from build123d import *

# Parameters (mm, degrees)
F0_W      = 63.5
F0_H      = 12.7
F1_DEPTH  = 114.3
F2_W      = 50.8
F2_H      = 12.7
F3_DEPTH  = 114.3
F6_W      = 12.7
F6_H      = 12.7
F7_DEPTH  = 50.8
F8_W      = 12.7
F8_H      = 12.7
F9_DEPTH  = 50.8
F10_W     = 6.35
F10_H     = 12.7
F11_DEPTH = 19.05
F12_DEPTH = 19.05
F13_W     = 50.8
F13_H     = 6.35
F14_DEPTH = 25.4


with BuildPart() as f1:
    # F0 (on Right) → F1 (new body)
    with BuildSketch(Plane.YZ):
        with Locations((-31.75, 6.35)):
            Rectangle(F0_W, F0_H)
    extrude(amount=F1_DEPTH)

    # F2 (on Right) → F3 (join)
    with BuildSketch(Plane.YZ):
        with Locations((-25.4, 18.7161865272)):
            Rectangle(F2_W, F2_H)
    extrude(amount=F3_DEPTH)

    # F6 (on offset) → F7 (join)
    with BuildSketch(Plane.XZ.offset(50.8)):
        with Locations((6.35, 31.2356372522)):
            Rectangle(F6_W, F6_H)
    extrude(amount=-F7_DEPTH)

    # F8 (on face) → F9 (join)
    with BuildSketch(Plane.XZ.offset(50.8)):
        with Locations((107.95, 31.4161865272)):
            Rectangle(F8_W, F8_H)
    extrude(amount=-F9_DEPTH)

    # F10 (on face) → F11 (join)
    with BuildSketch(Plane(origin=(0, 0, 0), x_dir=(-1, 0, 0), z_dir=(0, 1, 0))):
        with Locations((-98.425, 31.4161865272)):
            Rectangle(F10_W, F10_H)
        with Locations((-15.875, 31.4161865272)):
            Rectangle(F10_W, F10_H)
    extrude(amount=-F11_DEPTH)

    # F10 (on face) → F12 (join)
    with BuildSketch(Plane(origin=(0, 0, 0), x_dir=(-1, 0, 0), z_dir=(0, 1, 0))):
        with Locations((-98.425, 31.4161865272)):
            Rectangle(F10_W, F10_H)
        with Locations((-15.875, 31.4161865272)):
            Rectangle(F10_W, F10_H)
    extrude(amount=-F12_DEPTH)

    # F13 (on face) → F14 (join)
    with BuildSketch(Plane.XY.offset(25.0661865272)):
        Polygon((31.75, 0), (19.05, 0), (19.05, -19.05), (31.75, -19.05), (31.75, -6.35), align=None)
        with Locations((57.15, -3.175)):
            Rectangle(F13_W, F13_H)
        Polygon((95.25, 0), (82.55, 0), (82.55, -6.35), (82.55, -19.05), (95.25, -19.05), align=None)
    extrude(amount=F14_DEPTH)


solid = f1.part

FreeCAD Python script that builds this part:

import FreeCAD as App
import Part
import Sketcher
Q = App.Units.Quantity

doc = App.newDocument("Part")
params = doc.addObject("Spreadsheet::Sheet", "Params")
for row, (alias, value) in enumerate([
    ("sketch1_width", "2.5 in"),
    ("sketch1_height", "0.5 in"),
    ("pad1_length", "4.5 in"),
    ("sketch2_width", "2 in"),
    ("sketch2_height", "0.5 in"),
    ("pad2_length", "4.5 in"),
    ("sketch3_width", "0.5 in"),
    ("pad3_length", "2 in"),
    ("sketch4_width", "0.5 in"),
    ("pad4_length", "2 in"),
    ("sketch5_height", "0.5 in"),
    ("sketch5_width", "0.25 in"),
    ("pad5_length", "0.75 in"),
    ("sketch6_height", "0.5 in"),
    ("sketch6_width", "0.25 in"),
    ("pad6_length", "0.75 in"),
    ("sketch7_width", "2 in"),
    ("sketch7_width2", "3 in"),
    ("sketch7_height", "0.75 in"),
    ("pad7_length", "1 in"),
], start=1):
    params.set(f"A{row}", alias)
    params.set(f"B{row}", "=" + value)
    params.setAlias(f"B{row}", alias)

body = doc.addObject("PartDesign::Body", "Body")

# Sketch on YZ plane
sketch1 = doc.addObject("Sketcher::SketchObject", "Sketch")
body.addObject(sketch1)
sketch1.AttachmentSupport = (doc.YZ_Plane, [""])
sketch1.MapMode = "FlatFace"
sketch1.addGeometry(Part.LineSegment(App.Vector(-63.5, 12.7, 0), App.Vector(-63.5, 0, 0)), False)
sketch1.addGeometry(Part.LineSegment(App.Vector(-63.5, 0, 0), App.Vector(0, 0, 0)), False)
sketch1.addGeometry(Part.LineSegment(App.Vector(0, 0, 0), App.Vector(0, 12.7, 0)), False)
sketch1.addGeometry(Part.LineSegment(App.Vector(0, 12.7, 0), App.Vector(-63.5, 12.7, 0)), False)
sketch1.addConstraint(Sketcher.Constraint("Coincident", 0, 2, 1, 1))
sketch1.addConstraint(Sketcher.Constraint("Coincident", 1, 2, 2, 1))
sketch1.addConstraint(Sketcher.Constraint("Coincident", 2, 2, 3, 1))
sketch1.addConstraint(Sketcher.Constraint("Coincident", 3, 2, 0, 1))
sketch1.addConstraint(Sketcher.Constraint("Vertical", 0))
sketch1.addConstraint(Sketcher.Constraint("Horizontal", 1))
sketch1.addConstraint(Sketcher.Constraint("Vertical", 2))
sketch1.addConstraint(Sketcher.Constraint("Horizontal", 3))
sketch1.addConstraint(Sketcher.Constraint("Coincident", 1, 2, -1, 1))
sketch1.addConstraint(Sketcher.Constraint("DistanceX", 1, 1, 1, 2, Q("2.5 in")))
sketch1.addConstraint(Sketcher.Constraint("DistanceY", 0, 2, 0, 1, Q("0.5 in")))
sketch1.setExpression("Constraints[9]", "Params.sketch1_width")
sketch1.setExpression("Constraints[10]", "Params.sketch1_height")
pad1 = doc.addObject("PartDesign::Pad", "Pad")
body.addObject(pad1)
pad1.Profile = sketch1
pad1.setExpression("Length", "Params.pad1_length")

# Sketch on YZ plane
sketch2 = doc.addObject("Sketcher::SketchObject", "Sketch001")
body.addObject(sketch2)
sketch2.AttachmentSupport = (doc.YZ_Plane, [""])
sketch2.MapMode = "FlatFace"
sketch2.addGeometry(Part.LineSegment(App.Vector(-50.8, 25.066187, 0), App.Vector(-50.8, 12.366187, 0)), False)
sketch2.addGeometry(Part.LineSegment(App.Vector(-50.8, 12.366187, 0), App.Vector(0, 12.366187, 0)), False)
sketch2.addGeometry(Part.LineSegment(App.Vector(0, 12.366187, 0), App.Vector(0, 25.066187, 0)), False)
sketch2.addGeometry(Part.LineSegment(App.Vector(0, 25.066187, 0), App.Vector(-50.8, 25.066187, 0)), False)
sketch2.addConstraint(Sketcher.Constraint("Coincident", 0, 2, 1, 1))
sketch2.addConstraint(Sketcher.Constraint("Coincident", 1, 2, 2, 1))
sketch2.addConstraint(Sketcher.Constraint("Coincident", 2, 2, 3, 1))
sketch2.addConstraint(Sketcher.Constraint("Coincident", 3, 2, 0, 1))
sketch2.addConstraint(Sketcher.Constraint("Vertical", 0))
sketch2.addConstraint(Sketcher.Constraint("Horizontal", 1))
sketch2.addConstraint(Sketcher.Constraint("Vertical", 2))
sketch2.addConstraint(Sketcher.Constraint("Horizontal", 3))
sketch2.addConstraint(Sketcher.Constraint("PointOnObject", 1, 2, -2))
sketch2.addConstraint(Sketcher.Constraint("DistanceX", 1, 1, 1, 2, Q("2 in")))
sketch2.addConstraint(Sketcher.Constraint("DistanceY", 0, 2, 0, 1, Q("0.5 in")))
sketch2.addConstraint(Sketcher.Constraint("DistanceY", -1, 1, 0, 2, 12.366187))
sketch2.setExpression("Constraints[9]", "Params.sketch2_width")
sketch2.setExpression("Constraints[10]", "Params.sketch2_height")
pad2 = doc.addObject("PartDesign::Pad", "Pad001")
body.addObject(pad2)
pad2.Profile = sketch2
pad2.setExpression("Length", "Params.pad2_length")

# Sketch on XZ plane
sketch3 = doc.addObject("Sketcher::SketchObject", "Sketch002")
body.addObject(sketch3)
sketch3.AttachmentSupport = (doc.XZ_Plane, [""])
sketch3.MapMode = "FlatFace"
sketch3.AttachmentOffset = App.Placement(App.Vector(0, 0, 2 * 25.4), App.Rotation())
sketch3.addGeometry(Part.LineSegment(App.Vector(0, 37.585637, 0), App.Vector(0, 24.885637, 0)), False)
sketch3.addGeometry(Part.LineSegment(App.Vector(0, 24.885637, 0), App.Vector(12.7, 24.885637, 0)), False)
sketch3.addGeometry(Part.LineSegment(App.Vector(12.7, 24.885637, 0), App.Vector(12.7, 37.585637, 0)), False)
sketch3.addGeometry(Part.LineSegment(App.Vector(12.7, 37.585637, 0), App.Vector(0, 37.585637, 0)), False)
sketch3.addConstraint(Sketcher.Constraint("Coincident", 0, 2, 1, 1))
sketch3.addConstraint(Sketcher.Constraint("Coincident", 1, 2, 2, 1))
sketch3.addConstraint(Sketcher.Constraint("Coincident", 2, 2, 3, 1))
sketch3.addConstraint(Sketcher.Constraint("Coincident", 3, 2, 0, 1))
sketch3.addConstraint(Sketcher.Constraint("Vertical", 0))
sketch3.addConstraint(Sketcher.Constraint("Horizontal", 1))
sketch3.addConstraint(Sketcher.Constraint("Vertical", 2))
sketch3.addConstraint(Sketcher.Constraint("Horizontal", 3))
sketch3.addConstraint(Sketcher.Constraint("PointOnObject", 0, 2, -2))
sketch3.addConstraint(Sketcher.Constraint("Equal", 3, 0))
sketch3.addConstraint(Sketcher.Constraint("DistanceX", 1, 1, 1, 2, Q("0.5 in")))
sketch3.addConstraint(Sketcher.Constraint("DistanceY", -1, 1, 0, 2, 24.885637))
sketch3.setExpression("Constraints[10]", "Params.sketch3_width")
pad3 = doc.addObject("PartDesign::Pad", "Pad002")
body.addObject(pad3)
pad3.Profile = sketch3
pad3.setExpression("Length", "Params.pad3_length")
pad3.Reversed = True

# Sketch on XZ plane
sketch4 = doc.addObject("Sketcher::SketchObject", "Sketch003")
body.addObject(sketch4)
sketch4.AttachmentSupport = (doc.XZ_Plane, [""])
sketch4.MapMode = "FlatFace"
sketch4.AttachmentOffset = App.Placement(App.Vector(0, 0, 2 * 25.4), App.Rotation())
sketch4.addGeometry(Part.LineSegment(App.Vector(101.6, 37.766187, 0), App.Vector(101.6, 25.066187, 0)), False)
sketch4.addGeometry(Part.LineSegment(App.Vector(101.6, 25.066187, 0), App.Vector(114.3, 25.066187, 0)), False)
sketch4.addGeometry(Part.LineSegment(App.Vector(114.3, 25.066187, 0), App.Vector(114.3, 37.766187, 0)), False)
sketch4.addGeometry(Part.LineSegment(App.Vector(114.3, 37.766187, 0), App.Vector(101.6, 37.766187, 0)), False)
sketch4.addConstraint(Sketcher.Constraint("Coincident", 0, 2, 1, 1))
sketch4.addConstraint(Sketcher.Constraint("Coincident", 1, 2, 2, 1))
sketch4.addConstraint(Sketcher.Constraint("Coincident", 2, 2, 3, 1))
sketch4.addConstraint(Sketcher.Constraint("Coincident", 3, 2, 0, 1))
sketch4.addConstraint(Sketcher.Constraint("Vertical", 0))
sketch4.addConstraint(Sketcher.Constraint("Horizontal", 1))
sketch4.addConstraint(Sketcher.Constraint("Vertical", 2))
sketch4.addConstraint(Sketcher.Constraint("Horizontal", 3))
sketch4.addConstraint(Sketcher.Constraint("Equal", 3, 0))
sketch4.addConstraint(Sketcher.Constraint("DistanceX", 1, 1, 1, 2, Q("0.5 in")))
sketch4.addConstraint(Sketcher.Constraint("DistanceX", -1, 1, 0, 2, Q("4 in")))
sketch4.addConstraint(Sketcher.Constraint("DistanceY", -1, 1, 0, 2, 25.066187))
sketch4.setExpression("Constraints[9]", "Params.sketch4_width")
pad4 = doc.addObject("PartDesign::Pad", "Pad003")
body.addObject(pad4)
pad4.Profile = sketch4
pad4.setExpression("Length", "Params.pad4_length")
pad4.Reversed = True

# Sketch on XZ plane
sketch5 = doc.addObject("Sketcher::SketchObject", "Sketch004")
body.addObject(sketch5)
sketch5.AttachmentSupport = (doc.XZ_Plane, [""])
sketch5.MapMode = "FlatFace"
sketch5.addGeometry(Part.LineSegment(App.Vector(101.6, 37.766187, 0), App.Vector(101.6, 25.066187, 0)), False)
sketch5.addGeometry(Part.LineSegment(App.Vector(101.6, 25.066187, 0), App.Vector(95.25, 25.066187, 0)), False)
sketch5.addGeometry(Part.LineSegment(App.Vector(95.25, 25.066187, 0), App.Vector(95.25, 37.766187, 0)), False)
sketch5.addGeometry(Part.LineSegment(App.Vector(95.25, 37.766187, 0), App.Vector(101.6, 37.766187, 0)), False)
sketch5.addGeometry(Part.LineSegment(App.Vector(19.05, 37.766187, 0), App.Vector(19.05, 25.066187, 0)), False)
sketch5.addGeometry(Part.LineSegment(App.Vector(19.05, 25.066187, 0), App.Vector(12.7, 25.066187, 0)), False)
sketch5.addGeometry(Part.LineSegment(App.Vector(12.7, 25.066187, 0), App.Vector(12.7, 37.766187, 0)), False)
sketch5.addGeometry(Part.LineSegment(App.Vector(12.7, 37.766187, 0), App.Vector(19.05, 37.766187, 0)), False)
sketch5.addConstraint(Sketcher.Constraint("Coincident", 0, 2, 1, 1))
sketch5.addConstraint(Sketcher.Constraint("Coincident", 1, 2, 2, 1))
sketch5.addConstraint(Sketcher.Constraint("Coincident", 2, 2, 3, 1))
sketch5.addConstraint(Sketcher.Constraint("Coincident", 3, 2, 0, 1))
sketch5.addConstraint(Sketcher.Constraint("Coincident", 4, 2, 5, 1))
sketch5.addConstraint(Sketcher.Constraint("Coincident", 5, 2, 6, 1))
sketch5.addConstraint(Sketcher.Constraint("Coincident", 6, 2, 7, 1))
sketch5.addConstraint(Sketcher.Constraint("Coincident", 7, 2, 4, 1))
sketch5.addConstraint(Sketcher.Constraint("Vertical", 0))
sketch5.addConstraint(Sketcher.Constraint("Horizontal", 1))
sketch5.addConstraint(Sketcher.Constraint("Vertical", 2))
sketch5.addConstraint(Sketcher.Constraint("Horizontal", 3))
sketch5.addConstraint(Sketcher.Constraint("Vertical", 4))
sketch5.addConstraint(Sketcher.Constraint("Horizontal", 5))
sketch5.addConstraint(Sketcher.Constraint("Vertical", 6))
sketch5.addConstraint(Sketcher.Constraint("Horizontal", 7))
sketch5.addConstraint(Sketcher.Constraint("Horizontal", 1, 2, 4, 2))
sketch5.addConstraint(Sketcher.Constraint("Horizontal", 3, 2, 6, 2))
sketch5.addConstraint(Sketcher.Constraint("Equal", 3, 5))
sketch5.addConstraint(Sketcher.Constraint("DistanceY", 0, 2, 0, 1, Q("0.5 in")))
sketch5.addConstraint(Sketcher.Constraint("DistanceX", -1, 1, 0, 2, Q("4 in")))
sketch5.addConstraint(Sketcher.Constraint("DistanceX", 4, 2, 1, 2, Q("3 in")))
sketch5.addConstraint(Sketcher.Constraint("DistanceX", 1, 2, 1, 1, Q("0.25 in")))
sketch5.addConstraint(Sketcher.Constraint("DistanceY", -1, 1, 0, 2, 25.066187))
sketch5.setExpression("Constraints[19]", "Params.sketch5_height")
sketch5.setExpression("Constraints[22]", "Params.sketch5_width")
pad5 = doc.addObject("PartDesign::Pad", "Pad004")
body.addObject(pad5)
pad5.Profile = sketch5
pad5.setExpression("Length", "Params.pad5_length")

# Sketch on XZ plane
sketch6 = doc.addObject("Sketcher::SketchObject", "Sketch005")
body.addObject(sketch6)
sketch6.AttachmentSupport = (doc.XZ_Plane, [""])
sketch6.MapMode = "FlatFace"
sketch6.addGeometry(Part.LineSegment(App.Vector(101.6, 37.766187, 0), App.Vector(101.6, 25.066187, 0)), False)
sketch6.addGeometry(Part.LineSegment(App.Vector(101.6, 25.066187, 0), App.Vector(95.25, 25.066187, 0)), False)
sketch6.addGeometry(Part.LineSegment(App.Vector(95.25, 25.066187, 0), App.Vector(95.25, 37.766187, 0)), False)
sketch6.addGeometry(Part.LineSegment(App.Vector(95.25, 37.766187, 0), App.Vector(101.6, 37.766187, 0)), False)
sketch6.addGeometry(Part.LineSegment(App.Vector(19.05, 37.766187, 0), App.Vector(19.05, 25.066187, 0)), False)
sketch6.addGeometry(Part.LineSegment(App.Vector(19.05, 25.066187, 0), App.Vector(12.7, 25.066187, 0)), False)
sketch6.addGeometry(Part.LineSegment(App.Vector(12.7, 25.066187, 0), App.Vector(12.7, 37.766187, 0)), False)
sketch6.addGeometry(Part.LineSegment(App.Vector(12.7, 37.766187, 0), App.Vector(19.05, 37.766187, 0)), False)
sketch6.addConstraint(Sketcher.Constraint("Coincident", 0, 2, 1, 1))
sketch6.addConstraint(Sketcher.Constraint("Coincident", 1, 2, 2, 1))
sketch6.addConstraint(Sketcher.Constraint("Coincident", 2, 2, 3, 1))
sketch6.addConstraint(Sketcher.Constraint("Coincident", 3, 2, 0, 1))
sketch6.addConstraint(Sketcher.Constraint("Coincident", 4, 2, 5, 1))
sketch6.addConstraint(Sketcher.Constraint("Coincident", 5, 2, 6, 1))
sketch6.addConstraint(Sketcher.Constraint("Coincident", 6, 2, 7, 1))
sketch6.addConstraint(Sketcher.Constraint("Coincident", 7, 2, 4, 1))
sketch6.addConstraint(Sketcher.Constraint("Vertical", 0))
sketch6.addConstraint(Sketcher.Constraint("Horizontal", 1))
sketch6.addConstraint(Sketcher.Constraint("Vertical", 2))
sketch6.addConstraint(Sketcher.Constraint("Horizontal", 3))
sketch6.addConstraint(Sketcher.Constraint("Vertical", 4))
sketch6.addConstraint(Sketcher.Constraint("Horizontal", 5))
sketch6.addConstraint(Sketcher.Constraint("Vertical", 6))
sketch6.addConstraint(Sketcher.Constraint("Horizontal", 7))
sketch6.addConstraint(Sketcher.Constraint("Horizontal", 1, 2, 4, 2))
sketch6.addConstraint(Sketcher.Constraint("Horizontal", 3, 2, 6, 2))
sketch6.addConstraint(Sketcher.Constraint("Equal", 3, 5))
sketch6.addConstraint(Sketcher.Constraint("DistanceY", 0, 2, 0, 1, Q("0.5 in")))
sketch6.addConstraint(Sketcher.Constraint("DistanceX", -1, 1, 0, 2, Q("4 in")))
sketch6.addConstraint(Sketcher.Constraint("DistanceX", 4, 2, 1, 2, Q("3 in")))
sketch6.addConstraint(Sketcher.Constraint("DistanceX", 1, 2, 1, 1, Q("0.25 in")))
sketch6.addConstraint(Sketcher.Constraint("DistanceY", -1, 1, 0, 2, 25.066187))
sketch6.setExpression("Constraints[19]", "Params.sketch6_height")
sketch6.setExpression("Constraints[22]", "Params.sketch6_width")
pad6 = doc.addObject("PartDesign::Pad", "Pad005")
body.addObject(pad6)
pad6.Profile = sketch6
pad6.setExpression("Length", "Params.pad6_length")

# Sketch on XY plane
sketch7 = doc.addObject("Sketcher::SketchObject", "Sketch006")
body.addObject(sketch7)
sketch7.AttachmentSupport = (doc.XY_Plane, [""])
sketch7.MapMode = "FlatFace"
sketch7.AttachmentOffset = App.Placement(App.Vector(0, 0, 25.066187), App.Rotation())
sketch7.addGeometry(Part.LineSegment(App.Vector(19.05, 0, 0), App.Vector(19.05, -19.05, 0)), False)
sketch7.addGeometry(Part.LineSegment(App.Vector(19.05, -19.05, 0), App.Vector(31.75, -19.05, 0)), False)
sketch7.addGeometry(Part.LineSegment(App.Vector(31.75, -19.05, 0), App.Vector(31.75, -6.35, 0)), False)
sketch7.addGeometry(Part.LineSegment(App.Vector(31.75, -6.35, 0), App.Vector(82.55, -6.35, 0)), False)
sketch7.addGeometry(Part.LineSegment(App.Vector(82.55, -6.35, 0), App.Vector(82.55, -19.05, 0)), False)
sketch7.addGeometry(Part.LineSegment(App.Vector(82.55, -19.05, 0), App.Vector(95.25, -19.05, 0)), False)
sketch7.addGeometry(Part.LineSegment(App.Vector(95.25, -19.05, 0), App.Vector(95.25, 0, 0)), False)
sketch7.addGeometry(Part.LineSegment(App.Vector(95.25, 0, 0), App.Vector(19.05, 0, 0)), False)
sketch7.addConstraint(Sketcher.Constraint("Coincident", 0, 2, 1, 1))
sketch7.addConstraint(Sketcher.Constraint("Coincident", 1, 2, 2, 1))
sketch7.addConstraint(Sketcher.Constraint("Coincident", 2, 2, 3, 1))
sketch7.addConstraint(Sketcher.Constraint("Coincident", 3, 2, 4, 1))
sketch7.addConstraint(Sketcher.Constraint("Coincident", 4, 2, 5, 1))
sketch7.addConstraint(Sketcher.Constraint("Coincident", 5, 2, 6, 1))
sketch7.addConstraint(Sketcher.Constraint("Coincident", 6, 2, 7, 1))
sketch7.addConstraint(Sketcher.Constraint("Coincident", 7, 2, 0, 1))
sketch7.addConstraint(Sketcher.Constraint("Vertical", 0))
sketch7.addConstraint(Sketcher.Constraint("Horizontal", 1))
sketch7.addConstraint(Sketcher.Constraint("Vertical", 2))
sketch7.addConstraint(Sketcher.Constraint("Horizontal", 3))
sketch7.addConstraint(Sketcher.Constraint("Vertical", 4))
sketch7.addConstraint(Sketcher.Constraint("Horizontal", 5))
sketch7.addConstraint(Sketcher.Constraint("Vertical", 6))
sketch7.addConstraint(Sketcher.Constraint("Horizontal", 7))
sketch7.addConstraint(Sketcher.Constraint("PointOnObject", 6, 2, -1))
sketch7.addConstraint(Sketcher.Constraint("Horizontal", 1, 2, 4, 2))
sketch7.addConstraint(Sketcher.Constraint("Equal", 1, 5))
sketch7.addConstraint(Sketcher.Constraint("Equal", 5, 2))
sketch7.addConstraint(Sketcher.Constraint("DistanceX", 3, 1, 3, 2, Q("2 in")))
sketch7.addConstraint(Sketcher.Constraint("DistanceX", 7, 2, 7, 1, Q("3 in")))
sketch7.addConstraint(Sketcher.Constraint("DistanceY", 0, 2, 0, 1, Q("0.75 in")))
sketch7.addConstraint(Sketcher.Constraint("DistanceX", -1, 1, 0, 2, Q("0.75 in")))
sketch7.setExpression("Constraints[20]", "Params.sketch7_width")
sketch7.setExpression("Constraints[21]", "Params.sketch7_width2")
sketch7.setExpression("Constraints[22]", "Params.sketch7_height")
pad7 = doc.addObject("PartDesign::Pad", "Pad006")
body.addObject(pad7)
pad7.Profile = sketch7
pad7.setExpression("Length", "Params.pad7_length")

doc.recompute()
